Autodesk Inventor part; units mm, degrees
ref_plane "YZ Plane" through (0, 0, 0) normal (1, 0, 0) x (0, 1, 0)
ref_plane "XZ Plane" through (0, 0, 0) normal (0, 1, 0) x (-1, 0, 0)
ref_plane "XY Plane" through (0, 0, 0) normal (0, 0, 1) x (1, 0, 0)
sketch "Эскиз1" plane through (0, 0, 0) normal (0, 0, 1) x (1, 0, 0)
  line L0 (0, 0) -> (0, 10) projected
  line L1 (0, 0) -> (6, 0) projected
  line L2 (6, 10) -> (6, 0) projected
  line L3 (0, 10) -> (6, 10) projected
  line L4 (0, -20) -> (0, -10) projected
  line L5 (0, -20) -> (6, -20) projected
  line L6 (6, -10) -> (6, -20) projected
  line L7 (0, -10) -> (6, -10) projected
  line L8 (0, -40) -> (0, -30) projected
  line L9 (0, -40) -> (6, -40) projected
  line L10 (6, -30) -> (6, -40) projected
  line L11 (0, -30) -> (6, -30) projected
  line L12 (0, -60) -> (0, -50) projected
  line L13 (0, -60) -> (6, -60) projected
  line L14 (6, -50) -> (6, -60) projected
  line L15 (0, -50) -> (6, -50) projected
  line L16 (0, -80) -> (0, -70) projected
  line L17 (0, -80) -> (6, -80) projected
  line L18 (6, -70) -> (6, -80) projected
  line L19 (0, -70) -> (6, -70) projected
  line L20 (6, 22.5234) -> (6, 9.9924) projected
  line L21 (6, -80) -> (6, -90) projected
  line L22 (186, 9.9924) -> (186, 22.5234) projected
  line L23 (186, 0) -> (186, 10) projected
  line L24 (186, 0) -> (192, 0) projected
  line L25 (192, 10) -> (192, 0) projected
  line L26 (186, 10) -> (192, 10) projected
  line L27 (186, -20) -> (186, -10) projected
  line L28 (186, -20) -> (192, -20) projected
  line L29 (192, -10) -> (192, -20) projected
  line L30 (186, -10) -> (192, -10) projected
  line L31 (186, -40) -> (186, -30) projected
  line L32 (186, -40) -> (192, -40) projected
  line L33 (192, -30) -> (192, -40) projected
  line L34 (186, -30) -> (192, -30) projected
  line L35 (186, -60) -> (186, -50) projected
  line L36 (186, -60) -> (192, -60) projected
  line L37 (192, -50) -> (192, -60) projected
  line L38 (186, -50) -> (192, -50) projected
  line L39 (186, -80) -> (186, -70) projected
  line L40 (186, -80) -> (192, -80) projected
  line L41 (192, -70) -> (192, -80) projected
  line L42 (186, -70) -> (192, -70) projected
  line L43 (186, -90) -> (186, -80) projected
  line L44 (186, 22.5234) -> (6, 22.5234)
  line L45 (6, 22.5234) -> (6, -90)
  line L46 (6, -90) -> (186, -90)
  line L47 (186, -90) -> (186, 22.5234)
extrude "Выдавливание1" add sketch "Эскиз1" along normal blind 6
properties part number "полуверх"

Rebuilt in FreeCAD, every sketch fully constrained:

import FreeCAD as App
import Part
import Sketcher
Q = App.Units.Quantity


def add_polygon(sketch, points):
    """Adds a closed chain of lines whose ends are joined by coincident constraints."""
    first, n = sketch.GeometryCount, len(points)
    for a, b in zip(points, points[1:] + points[:1]):
        sketch.addGeometry(Part.LineSegment(App.Vector(*a, 0), App.Vector(*b, 0)), False)
    for i in range(n):
        sketch.addConstraint(Sketcher.Constraint("Coincident", first + i, 2, first + (i + 1) % n, 1))

doc = App.newDocument("Part")
body = doc.addObject("PartDesign::Body", "Body")

# Sketch on XY plane
sketch1 = body.newObject("Sketcher::SketchObject", "Sketch")
sketch1.AttachmentSupport = (doc.getObject("XY_Plane"), [""])
sketch1.MapMode = "FlatFace"
add_polygon(sketch1, [(0, 10), (0, 0), (6, 0), (6, -10), (0, -10), (0, -20), (6, -20), (6, -30), (0, -30), (0, -40), (6, -40), (6, -50), (0, -50), (0, -60), (6, -60), (6, -70), (0, -70), (0, -80), (6, -80), (6, -90), (186, -90), (186, -80), (192, -80), (192, -70), (186, -70), (186, -60), (192, -60), (192, -50), (186, -50), (186, -40), (192, -40), (192, -30), (186, -30), (186, -20), (192, -20), (192, -10), (186, -10), (186, 0), (192, 0), (192, 10), (186, 10), (186, 22.5234), (6, 22.5234), (6, 10)])  # lines 0-43
sketch1.addConstraint(Sketcher.Constraint("Vertical", 0))
sketch1.addConstraint(Sketcher.Constraint("Horizontal", 1))
sketch1.addConstraint(Sketcher.Constraint("Vertical", 2))
sketch1.addConstraint(Sketcher.Constraint("Horizontal", 3))
sketch1.addConstraint(Sketcher.Constraint("Vertical", 4))
sketch1.addConstraint(Sketcher.Constraint("Horizontal", 5))
sketch1.addConstraint(Sketcher.Constraint("Vertical", 6))
sketch1.addConstraint(Sketcher.Constraint("Horizontal", 7))
sketch1.addConstraint(Sketcher.Constraint("Vertical", 8))
sketch1.addConstraint(Sketcher.Constraint("Horizontal", 9))
sketch1.addConstraint(Sketcher.Constraint("Vertical", 10))
sketch1.addConstraint(Sketcher.Constraint("Horizontal", 11))
sketch1.addConstraint(Sketcher.Constraint("Vertical", 12))
sketch1.addConstraint(Sketcher.Constraint("Horizontal", 13))
sketch1.addConstraint(Sketcher.Constraint("Vertical", 14))
sketch1.addConstraint(Sketcher.Constraint("Horizontal", 15))
sketch1.addConstraint(Sketcher.Constraint("Vertical", 16))
sketch1.addConstraint(Sketcher.Constraint("Horizontal", 17))
sketch1.addConstraint(Sketcher.Constraint("Vertical", 18))
sketch1.addConstraint(Sketcher.Constraint("Horizontal", 19))
sketch1.addConstraint(Sketcher.Constraint("Vertical", 20))
sketch1.addConstraint(Sketcher.Constraint("Horizontal", 21))
sketch1.addConstraint(Sketcher.Constraint("Vertical", 22))
sketch1.addConstraint(Sketcher.Constraint("Horizontal", 23))
sketch1.addConstraint(Sketcher.Constraint("Vertical", 24))
sketch1.addConstraint(Sketcher.Constraint("Horizontal", 25))
sketch1.addConstraint(Sketcher.Constraint("Vertical", 26))
sketch1.addConstraint(Sketcher.Constraint("Horizontal", 27))
sketch1.addConstraint(Sketcher.Constraint("Vertical", 28))
sketch1.addConstraint(Sketcher.Constraint("Horizontal", 29))
sketch1.addConstraint(Sketcher.Constraint("Vertical", 30))
sketch1.addConstraint(Sketcher.Constraint("Horizontal", 31))
sketch1.addConstraint(Sketcher.Constraint("Vertical", 32))
sketch1.addConstraint(Sketcher.Constraint("Horizontal", 33))
sketch1.addConstraint(Sketcher.Constraint("Vertical", 34))
sketch1.addConstraint(Sketcher.Constraint("Horizontal", 35))
sketch1.addConstraint(Sketcher.Constraint("Vertical", 36))
sketch1.addConstraint(Sketcher.Constraint("Horizontal", 37))
sketch1.addConstraint(Sketcher.Constraint("Vertical", 38))
sketch1.addConstraint(Sketcher.Constraint("Horizontal", 39))
sketch1.addConstraint(Sketcher.Constraint("Vertical", 40))
sketch1.addConstraint(Sketcher.Constraint("Horizontal", 41))
sketch1.addConstraint(Sketcher.Constraint("Vertical", 42))
sketch1.addConstraint(Sketcher.Constraint("Horizontal", 43))
sketch1.addConstraint(Sketcher.Constraint("Coincident", 0, 2, -1, 1))
sketch1.addConstraint(Sketcher.Constraint("Symmetric", 3, 2, 43, 2, -1, 1))
sketch1.addConstraint(Sketcher.Constraint("Symmetric", 34, 2, 38, 2, -1))
sketch1.addConstraint(Sketcher.Constraint("PointOnObject", 7, 2, -2))
sketch1.addConstraint(Sketcher.Constraint("PointOnObject", 11, 2, -2))
sketch1.addConstraint(Sketcher.Constraint("PointOnObject", 15, 2, -2))
sketch1.addConstraint(Sketcher.Constraint("PointOnObject", 36, 2, -1))
sketch1.addConstraint(Sketcher.Constraint("Horizontal", 17, 2, 20, 2))
sketch1.addConstraint(Sketcher.Constraint("Horizontal", 15, 2, 22, 2))
sketch1.addConstraint(Sketcher.Constraint("Horizontal", 13, 2, 24, 2))
sketch1.addConstraint(Sketcher.Constraint("Horizontal", 11, 2, 26, 2))
sketch1.addConstraint(Sketcher.Constraint("Horizontal", 9, 2, 28, 2))
sketch1.addConstraint(Sketcher.Constraint("Horizontal", 7, 2, 30, 2))
sketch1.addConstraint(Sketcher.Constraint("Horizontal", 5, 2, 32, 2))
sketch1.addConstraint(Sketcher.Constraint("Horizontal", 3, 2, 34, 2))
sketch1.addConstraint(Sketcher.Constraint("Vertical", 2, 2, 5, 2))
sketch1.addConstraint(Sketcher.Constraint("Vertical", 6, 2, 9, 2))
sketch1.addConstraint(Sketcher.Constraint("Vertical", 10, 2, 13, 2))
sketch1.addConstraint(Sketcher.Constraint("Vertical", 14, 2, 17, 2))
sketch1.addConstraint(Sketcher.Constraint("Vertical", 20, 2, 23, 2))
sketch1.addConstraint(Sketcher.Constraint("Vertical", 22, 2, 25, 2))
sketch1.addConstraint(Sketcher.Constraint("Vertical", 24, 2, 27, 2))
sketch1.addConstraint(Sketcher.Constraint("Vertical", 26, 2, 29, 2))
sketch1.addConstraint(Sketcher.Constraint("Vertical", 28, 2, 31, 2))
sketch1.addConstraint(Sketcher.Constraint("Vertical", 30, 2, 33, 2))
sketch1.addConstraint(Sketcher.Constraint("Vertical", 32, 2, 35, 2))
sketch1.addConstraint(Sketcher.Constraint("Vertical", 36, 2, 39, 2))
sketch1.addConstraint(Sketcher.Constraint("Vertical", 18, 2, 41, 2))
sketch1.addConstraint(Sketcher.Constraint("Equal", 17, 21))
sketch1.addConstraint(Sketcher.Constraint("Equal", 2, 4))
sketch1.addConstraint(Sketcher.Constraint("Equal", 4, 6))
sketch1.addConstraint(Sketcher.Constraint("Equal", 6, 8))
sketch1.addConstraint(Sketcher.Constraint("Equal", 8, 10))
sketch1.addConstraint(Sketcher.Constraint("Equal", 10, 12))
sketch1.addConstraint(Sketcher.Constraint("Equal", 12, 14))
sketch1.addConstraint(Sketcher.Constraint("Equal", 14, 16))
sketch1.addConstraint(Sketcher.Constraint("Equal", 16, 18))
sketch1.addConstraint(Sketcher.Constraint("DistanceX", 1, 1, 1, 2, Q("6 mm")))
sketch1.addConstraint(Sketcher.Constraint("DistanceX", 19, 1, 19, 2, Q("180 mm")))
sketch1.addConstraint(Sketcher.Constraint("DistanceY", 0, 2, 0, 1, Q("10 mm")))
sketch1.addConstraint(Sketcher.Constraint("DistanceY", 40, 1, 40, 2, Q("12.5234 mm")))
pad1 = body.newObject("PartDesign::Pad", "Pad")
pad1.Profile = sketch1
pad1.Length = 6

doc.recompute()
